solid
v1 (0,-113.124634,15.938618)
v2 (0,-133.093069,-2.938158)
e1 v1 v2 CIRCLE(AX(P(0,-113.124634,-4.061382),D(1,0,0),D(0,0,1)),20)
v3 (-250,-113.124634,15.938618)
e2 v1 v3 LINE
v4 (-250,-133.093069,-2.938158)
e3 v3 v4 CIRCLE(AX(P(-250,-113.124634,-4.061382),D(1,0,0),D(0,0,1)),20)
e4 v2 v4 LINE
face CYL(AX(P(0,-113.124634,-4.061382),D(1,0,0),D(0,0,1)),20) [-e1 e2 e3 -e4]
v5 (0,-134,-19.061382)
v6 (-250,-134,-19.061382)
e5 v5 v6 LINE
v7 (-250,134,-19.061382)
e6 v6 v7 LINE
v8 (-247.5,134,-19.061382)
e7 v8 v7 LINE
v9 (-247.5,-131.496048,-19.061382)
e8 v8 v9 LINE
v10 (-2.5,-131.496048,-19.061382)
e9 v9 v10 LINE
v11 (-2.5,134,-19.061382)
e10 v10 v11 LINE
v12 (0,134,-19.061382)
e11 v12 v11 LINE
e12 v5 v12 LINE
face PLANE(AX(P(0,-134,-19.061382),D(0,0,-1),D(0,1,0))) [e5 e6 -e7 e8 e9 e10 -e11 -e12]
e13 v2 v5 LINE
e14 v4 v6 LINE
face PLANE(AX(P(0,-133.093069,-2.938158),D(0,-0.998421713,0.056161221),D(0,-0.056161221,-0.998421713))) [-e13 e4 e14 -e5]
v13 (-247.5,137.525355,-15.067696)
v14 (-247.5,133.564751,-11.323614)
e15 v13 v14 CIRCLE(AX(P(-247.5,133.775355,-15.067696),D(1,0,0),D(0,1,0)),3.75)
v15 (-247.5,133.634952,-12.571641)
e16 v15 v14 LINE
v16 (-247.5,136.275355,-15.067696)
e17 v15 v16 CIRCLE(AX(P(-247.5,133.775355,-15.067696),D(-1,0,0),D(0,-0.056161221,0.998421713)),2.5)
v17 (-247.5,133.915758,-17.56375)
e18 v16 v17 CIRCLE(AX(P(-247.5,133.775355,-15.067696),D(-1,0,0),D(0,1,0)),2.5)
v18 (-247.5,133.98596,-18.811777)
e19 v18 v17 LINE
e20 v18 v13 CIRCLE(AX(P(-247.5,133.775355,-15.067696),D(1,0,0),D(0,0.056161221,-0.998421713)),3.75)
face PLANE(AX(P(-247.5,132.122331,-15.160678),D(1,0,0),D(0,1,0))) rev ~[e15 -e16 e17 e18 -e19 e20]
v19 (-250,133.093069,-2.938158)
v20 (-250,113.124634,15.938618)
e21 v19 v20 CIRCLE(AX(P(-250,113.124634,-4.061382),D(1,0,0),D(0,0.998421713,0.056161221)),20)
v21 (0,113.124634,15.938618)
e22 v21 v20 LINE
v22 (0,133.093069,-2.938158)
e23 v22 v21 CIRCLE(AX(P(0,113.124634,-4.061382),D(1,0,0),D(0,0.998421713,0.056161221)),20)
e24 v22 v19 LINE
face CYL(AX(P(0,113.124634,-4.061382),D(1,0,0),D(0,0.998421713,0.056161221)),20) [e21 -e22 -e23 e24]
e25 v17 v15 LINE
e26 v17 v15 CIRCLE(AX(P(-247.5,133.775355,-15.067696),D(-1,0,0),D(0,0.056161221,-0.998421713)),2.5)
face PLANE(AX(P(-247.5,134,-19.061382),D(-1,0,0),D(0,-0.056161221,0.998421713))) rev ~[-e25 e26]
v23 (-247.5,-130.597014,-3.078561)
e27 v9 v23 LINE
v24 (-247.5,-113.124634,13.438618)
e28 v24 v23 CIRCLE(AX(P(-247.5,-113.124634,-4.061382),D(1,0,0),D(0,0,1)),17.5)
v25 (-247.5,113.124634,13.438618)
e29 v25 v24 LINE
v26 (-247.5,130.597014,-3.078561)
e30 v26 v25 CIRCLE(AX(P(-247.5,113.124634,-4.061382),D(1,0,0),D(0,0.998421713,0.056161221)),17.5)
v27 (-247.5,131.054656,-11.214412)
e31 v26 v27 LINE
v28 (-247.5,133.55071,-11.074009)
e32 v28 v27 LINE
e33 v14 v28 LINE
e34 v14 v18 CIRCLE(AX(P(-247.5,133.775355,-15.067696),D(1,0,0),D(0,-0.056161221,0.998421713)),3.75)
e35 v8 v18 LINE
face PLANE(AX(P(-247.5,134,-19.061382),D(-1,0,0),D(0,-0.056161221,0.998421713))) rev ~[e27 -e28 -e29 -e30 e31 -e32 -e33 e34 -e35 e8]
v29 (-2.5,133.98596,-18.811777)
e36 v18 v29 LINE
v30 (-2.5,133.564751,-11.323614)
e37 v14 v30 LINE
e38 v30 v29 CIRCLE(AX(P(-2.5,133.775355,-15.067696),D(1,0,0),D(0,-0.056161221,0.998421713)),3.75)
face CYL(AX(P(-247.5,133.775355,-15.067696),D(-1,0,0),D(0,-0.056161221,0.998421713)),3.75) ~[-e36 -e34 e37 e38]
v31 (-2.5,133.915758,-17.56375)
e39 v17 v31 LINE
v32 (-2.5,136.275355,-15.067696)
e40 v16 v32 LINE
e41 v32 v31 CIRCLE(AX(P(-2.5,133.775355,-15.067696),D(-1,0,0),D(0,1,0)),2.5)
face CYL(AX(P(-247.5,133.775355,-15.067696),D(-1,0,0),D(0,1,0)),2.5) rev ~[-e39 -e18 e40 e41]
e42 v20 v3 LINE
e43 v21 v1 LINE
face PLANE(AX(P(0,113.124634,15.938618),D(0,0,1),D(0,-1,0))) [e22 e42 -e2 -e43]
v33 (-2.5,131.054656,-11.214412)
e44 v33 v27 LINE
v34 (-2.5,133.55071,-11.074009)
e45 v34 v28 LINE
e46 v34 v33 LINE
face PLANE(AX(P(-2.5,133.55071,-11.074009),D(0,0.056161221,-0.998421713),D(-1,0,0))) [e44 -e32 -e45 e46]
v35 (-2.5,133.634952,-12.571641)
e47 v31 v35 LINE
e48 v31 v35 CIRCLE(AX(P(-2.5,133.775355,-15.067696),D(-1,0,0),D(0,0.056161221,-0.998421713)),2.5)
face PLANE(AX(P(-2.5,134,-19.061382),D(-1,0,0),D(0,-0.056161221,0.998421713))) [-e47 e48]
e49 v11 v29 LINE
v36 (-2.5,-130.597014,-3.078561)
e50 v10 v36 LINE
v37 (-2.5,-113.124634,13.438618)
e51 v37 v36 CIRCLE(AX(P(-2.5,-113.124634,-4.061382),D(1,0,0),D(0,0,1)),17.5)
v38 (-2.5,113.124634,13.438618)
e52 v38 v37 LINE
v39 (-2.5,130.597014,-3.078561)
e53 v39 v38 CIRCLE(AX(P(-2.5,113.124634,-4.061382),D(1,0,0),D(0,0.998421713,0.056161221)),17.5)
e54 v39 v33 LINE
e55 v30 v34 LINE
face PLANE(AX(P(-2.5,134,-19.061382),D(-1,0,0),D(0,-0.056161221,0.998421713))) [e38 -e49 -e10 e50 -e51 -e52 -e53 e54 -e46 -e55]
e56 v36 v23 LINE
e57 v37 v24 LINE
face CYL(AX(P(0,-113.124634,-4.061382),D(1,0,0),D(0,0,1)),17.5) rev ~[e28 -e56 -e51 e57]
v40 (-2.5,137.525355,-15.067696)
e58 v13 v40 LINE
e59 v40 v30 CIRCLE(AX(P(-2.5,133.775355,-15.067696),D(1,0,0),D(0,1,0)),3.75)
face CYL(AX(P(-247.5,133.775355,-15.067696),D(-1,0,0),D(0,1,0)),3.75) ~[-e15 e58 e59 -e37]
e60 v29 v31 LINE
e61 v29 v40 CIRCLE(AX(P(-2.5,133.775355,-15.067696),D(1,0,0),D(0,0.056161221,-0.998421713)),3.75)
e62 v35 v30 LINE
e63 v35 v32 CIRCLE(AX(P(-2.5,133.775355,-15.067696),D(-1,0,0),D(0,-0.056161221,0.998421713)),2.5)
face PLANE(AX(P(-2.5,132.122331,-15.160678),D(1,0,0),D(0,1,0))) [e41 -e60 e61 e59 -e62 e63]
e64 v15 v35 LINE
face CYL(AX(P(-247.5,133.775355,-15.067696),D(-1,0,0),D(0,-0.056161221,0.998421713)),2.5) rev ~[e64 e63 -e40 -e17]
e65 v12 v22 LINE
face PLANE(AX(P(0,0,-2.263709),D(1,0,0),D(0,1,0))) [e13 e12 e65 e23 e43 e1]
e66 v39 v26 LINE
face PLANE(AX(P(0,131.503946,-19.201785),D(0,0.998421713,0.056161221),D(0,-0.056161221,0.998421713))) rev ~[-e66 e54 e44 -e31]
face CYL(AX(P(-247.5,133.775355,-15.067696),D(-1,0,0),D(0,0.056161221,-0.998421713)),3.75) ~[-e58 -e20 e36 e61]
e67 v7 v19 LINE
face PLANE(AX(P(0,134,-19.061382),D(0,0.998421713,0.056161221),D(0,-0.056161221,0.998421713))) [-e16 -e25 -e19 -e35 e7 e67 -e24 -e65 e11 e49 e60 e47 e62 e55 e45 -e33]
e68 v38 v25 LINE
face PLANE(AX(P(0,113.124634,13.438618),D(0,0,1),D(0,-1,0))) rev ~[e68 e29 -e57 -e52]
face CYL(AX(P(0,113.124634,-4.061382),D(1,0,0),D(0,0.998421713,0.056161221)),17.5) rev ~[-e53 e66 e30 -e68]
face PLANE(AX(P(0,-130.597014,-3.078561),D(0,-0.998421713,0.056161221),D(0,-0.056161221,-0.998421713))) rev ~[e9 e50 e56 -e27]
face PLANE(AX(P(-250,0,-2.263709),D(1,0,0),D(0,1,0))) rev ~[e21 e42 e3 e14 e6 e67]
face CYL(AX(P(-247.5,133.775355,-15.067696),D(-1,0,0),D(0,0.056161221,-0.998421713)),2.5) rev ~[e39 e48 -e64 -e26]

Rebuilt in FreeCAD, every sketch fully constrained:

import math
import FreeCAD as App
import Part
import Sketcher


def faces_at(feature, points):
    """Names of the faces that lie closest to the given points."""
    faces = feature.Shape.Faces
    near = lambda p: min(range(len(faces)), key=lambda i: faces[i].distToShape(Part.Vertex(*p))[0])
    return sorted({f"Face{near(p) + 1}" for p in points})

doc = App.newDocument("Part")
body = doc.addObject("PartDesign::Body", "Body")

# Sketch on YZ plane
sketch1 = body.newObject("Sketcher::SketchObject", "Sketch")
sketch1.AttachmentSupport = (doc.getObject("YZ_Plane"), [""])
sketch1.MapMode = "FlatFace"
sketch1.addGeometry([
    Part.LineSegment(App.Vector(-134, -19, 0), App.Vector(134, -19, 0)),  # 0
    Part.LineSegment(App.Vector(134, -19, 0), App.Vector(133, -3, 0)),  # 1
    Part.ArcOfCircle(Part.Circle(App.Vector(113, -4, 0), App.Vector(0, 0, 1), 20), math.radians(3), math.radians(90)),  # 2
    Part.LineSegment(App.Vector(113, 16, 0), App.Vector(-113, 16, 0)),  # 3
    Part.ArcOfCircle(Part.Circle(App.Vector(-113, -4, 0), App.Vector(0, 0, 1), 20), math.radians(90), math.radians(177)),  # 4
    Part.LineSegment(App.Vector(-133, -3, 0), App.Vector(-134, -19, 0)),  # 5
], False)
sketch1.addConstraint([
    Sketcher.Constraint("Coincident", 0, 2, 1, 1),
    Sketcher.Constraint("Tangent", 1, 2, 2, 1),
    Sketcher.Constraint("Tangent", 2, 2, 3, 1),
    Sketcher.Constraint("Tangent", 3, 2, 4, 1),
    Sketcher.Constraint("Tangent", 4, 2, 5, 1),
    Sketcher.Constraint("Coincident", 5, 2, 0, 1),
    Sketcher.Constraint("Horizontal", 0),
    Sketcher.Constraint("Horizontal", 3),
    Sketcher.Constraint("Equal", 2, 4),
    Sketcher.Constraint("Symmetric", 1, 2, 4, 2, -2),
    Sketcher.Constraint("Radius", 2, 20.0),
    Sketcher.Constraint("DistanceX", 0, 1, 0, 2, 268.0),
    Sketcher.Constraint("DistanceY", 0, 2, 2, 3, 15.0),
    Sketcher.Constraint("DistanceX", 3, 2, 3, 1, 226.249269),
    Sketcher.Constraint("DistanceY", 2, 3, -1, 1, 4.061382),
])
pad1 = body.newObject("PartDesign::Pad", "Pad")
pad1.Profile = sketch1
pad1.Length = 250
pad1.Reversed = True
doc.recompute()

thickness = body.newObject("PartDesign::Thickness", "Thickness")
thickness.Base = (pad1, faces_at(pad1, [(-125, 0, -19.061)]))
thickness.Value = 2.5
thickness.Reversed = True
thickness.Join = "Arc"

# Sketch on an angled plane
sketch2 = body.newObject("Sketcher::SketchObject", "Sketch001")
sketch2.Placement = App.Placement(App.Vector(0, 132.508532, 7.453605), App.Rotation(App.Vector(-1, 0, 0), App.Vector(0, -0.056161221, 0.998421713), App.Vector(0, 0.998421713, 0.056161221), "ZXY"))
sketch2.addGeometry([
    Part.LineSegment(App.Vector(2, -19, 0), App.Vector(2, -27, 0)),
    Part.LineSegment(App.Vector(2, -27, 0), App.Vector(248, -27, 0)),
    Part.LineSegment(App.Vector(248, -27, 0), App.Vector(248, -19, 0)),
    Part.LineSegment(App.Vector(248, -19, 0), App.Vector(2, -19, 0)),
], False)
sketch2.addConstraint([
    Sketcher.Constraint("Coincident", 0, 2, 1, 1),
    Sketcher.Constraint("Coincident", 1, 2, 2, 1),
    Sketcher.Constraint("Coincident", 2, 2, 3, 1),
    Sketcher.Constraint("Coincident", 3, 2, 0, 1),
    Sketcher.Constraint("Vertical", 0),
    Sketcher.Constraint("Horizontal", 1),
    Sketcher.Constraint("Vertical", 2),
    Sketcher.Constraint("Horizontal", 3),
    Sketcher.Constraint("DistanceX", 1, 1, 1, 2, 245.0),
    Sketcher.Constraint("DistanceY", 0, 2, 0, 1, 8.0),
    Sketcher.Constraint("DistanceX", -1, 1, 0, 2, 2.5),
    Sketcher.Constraint("DistanceY", 0, 2, -1, 1, 26.556902),
])
pocket1 = body.newObject("PartDesign::Pocket", "Pocket")
pocket1.Profile = sketch2
pocket1.Type = "ThroughAll"

# Sketch on YZ plane
sketch3 = body.newObject("Sketcher::SketchObject", "Sketch002")
sketch3.AttachmentSupport = (doc.getObject("YZ_Plane"), [""])
sketch3.MapMode = "FlatFace"
sketch3.AttachmentOffset = App.Placement(App.Vector(0, 0, -247.5), App.Rotation())
sketch3.addGeometry([
    Part.ArcOfCircle(Part.Circle(App.Vector(133.8, -15.1, 0), App.Vector(0, 0, 1), 3.8), math.radians(93), math.radians(273)),  # 0
    Part.ArcOfCircle(Part.Circle(App.Vector(133.8, -15.1, 0), App.Vector(0, 0, 1), 3.8), math.radians(-87), math.radians(0)),  # 1
    Part.ArcOfCircle(Part.Circle(App.Vector(133.8, -15.1, 0), App.Vector(0, 0, 1), 3.8), math.radians(0), math.radians(93)),  # 2
    Part.ArcOfCircle(Part.Circle(App.Vector(133.8, -15.1, 0), App.Vector(0, 0, 1), 2.5), math.radians(93), math.radians(273)),  # 3
    Part.ArcOfCircle(Part.Circle(App.Vector(133.8, -15.1, 0), App.Vector(0, 0, 1), 2.5), math.radians(0), math.radians(93)),  # 4
    Part.ArcOfCircle(Part.Circle(App.Vector(133.8, -15.1, 0), App.Vector(0, 0, 1), 2.5), math.radians(-87), math.radians(0)),  # 5
], False)
sketch3.addConstraint([
    Sketcher.Constraint("Tangent", 0, 2, 1, 1),
    Sketcher.Constraint("Tangent", 1, 2, 2, 1),
    Sketcher.Constraint("Tangent", 2, 2, 0, 1),
    Sketcher.Constraint("Tangent", 3, 1, 4, 2),
    Sketcher.Constraint("Tangent", 4, 1, 5, 2),
    Sketcher.Constraint("Tangent", 5, 1, 3, 2),
    Sketcher.Constraint("Coincident", 3, 3, 0, 3),
    Sketcher.Constraint("Horizontal", 5, 3, 1, 2),
    Sketcher.Constraint("Horizontal", 1, 2, 4, 1),
    Sketcher.Constraint("Radius", 3, 2.5),
    Sketcher.Constraint("Radius", 0, 3.75),
    Sketcher.Constraint("DistanceX", 2, 2, 3, 1, 0.070202),
    Sketcher.Constraint("DistanceX", 5, 1, 0, 2, 0.070202),
    Sketcher.Constraint("DistanceX", -1, 1, 0, 2, 133.98596),
    Sketcher.Constraint("DistanceX", -1, 1, 2, 2, 133.564751),
    Sketcher.Constraint("DistanceY", 3, 1, -1, 1, 12.571641),
    Sketcher.Constraint("DistanceY", 0, 2, 0, 3, 3.744081),
])
pad2 = body.newObject("PartDesign::Pad", "Pad001")
pad2.Profile = sketch3
pad2.Length = 245

doc.recompute()
